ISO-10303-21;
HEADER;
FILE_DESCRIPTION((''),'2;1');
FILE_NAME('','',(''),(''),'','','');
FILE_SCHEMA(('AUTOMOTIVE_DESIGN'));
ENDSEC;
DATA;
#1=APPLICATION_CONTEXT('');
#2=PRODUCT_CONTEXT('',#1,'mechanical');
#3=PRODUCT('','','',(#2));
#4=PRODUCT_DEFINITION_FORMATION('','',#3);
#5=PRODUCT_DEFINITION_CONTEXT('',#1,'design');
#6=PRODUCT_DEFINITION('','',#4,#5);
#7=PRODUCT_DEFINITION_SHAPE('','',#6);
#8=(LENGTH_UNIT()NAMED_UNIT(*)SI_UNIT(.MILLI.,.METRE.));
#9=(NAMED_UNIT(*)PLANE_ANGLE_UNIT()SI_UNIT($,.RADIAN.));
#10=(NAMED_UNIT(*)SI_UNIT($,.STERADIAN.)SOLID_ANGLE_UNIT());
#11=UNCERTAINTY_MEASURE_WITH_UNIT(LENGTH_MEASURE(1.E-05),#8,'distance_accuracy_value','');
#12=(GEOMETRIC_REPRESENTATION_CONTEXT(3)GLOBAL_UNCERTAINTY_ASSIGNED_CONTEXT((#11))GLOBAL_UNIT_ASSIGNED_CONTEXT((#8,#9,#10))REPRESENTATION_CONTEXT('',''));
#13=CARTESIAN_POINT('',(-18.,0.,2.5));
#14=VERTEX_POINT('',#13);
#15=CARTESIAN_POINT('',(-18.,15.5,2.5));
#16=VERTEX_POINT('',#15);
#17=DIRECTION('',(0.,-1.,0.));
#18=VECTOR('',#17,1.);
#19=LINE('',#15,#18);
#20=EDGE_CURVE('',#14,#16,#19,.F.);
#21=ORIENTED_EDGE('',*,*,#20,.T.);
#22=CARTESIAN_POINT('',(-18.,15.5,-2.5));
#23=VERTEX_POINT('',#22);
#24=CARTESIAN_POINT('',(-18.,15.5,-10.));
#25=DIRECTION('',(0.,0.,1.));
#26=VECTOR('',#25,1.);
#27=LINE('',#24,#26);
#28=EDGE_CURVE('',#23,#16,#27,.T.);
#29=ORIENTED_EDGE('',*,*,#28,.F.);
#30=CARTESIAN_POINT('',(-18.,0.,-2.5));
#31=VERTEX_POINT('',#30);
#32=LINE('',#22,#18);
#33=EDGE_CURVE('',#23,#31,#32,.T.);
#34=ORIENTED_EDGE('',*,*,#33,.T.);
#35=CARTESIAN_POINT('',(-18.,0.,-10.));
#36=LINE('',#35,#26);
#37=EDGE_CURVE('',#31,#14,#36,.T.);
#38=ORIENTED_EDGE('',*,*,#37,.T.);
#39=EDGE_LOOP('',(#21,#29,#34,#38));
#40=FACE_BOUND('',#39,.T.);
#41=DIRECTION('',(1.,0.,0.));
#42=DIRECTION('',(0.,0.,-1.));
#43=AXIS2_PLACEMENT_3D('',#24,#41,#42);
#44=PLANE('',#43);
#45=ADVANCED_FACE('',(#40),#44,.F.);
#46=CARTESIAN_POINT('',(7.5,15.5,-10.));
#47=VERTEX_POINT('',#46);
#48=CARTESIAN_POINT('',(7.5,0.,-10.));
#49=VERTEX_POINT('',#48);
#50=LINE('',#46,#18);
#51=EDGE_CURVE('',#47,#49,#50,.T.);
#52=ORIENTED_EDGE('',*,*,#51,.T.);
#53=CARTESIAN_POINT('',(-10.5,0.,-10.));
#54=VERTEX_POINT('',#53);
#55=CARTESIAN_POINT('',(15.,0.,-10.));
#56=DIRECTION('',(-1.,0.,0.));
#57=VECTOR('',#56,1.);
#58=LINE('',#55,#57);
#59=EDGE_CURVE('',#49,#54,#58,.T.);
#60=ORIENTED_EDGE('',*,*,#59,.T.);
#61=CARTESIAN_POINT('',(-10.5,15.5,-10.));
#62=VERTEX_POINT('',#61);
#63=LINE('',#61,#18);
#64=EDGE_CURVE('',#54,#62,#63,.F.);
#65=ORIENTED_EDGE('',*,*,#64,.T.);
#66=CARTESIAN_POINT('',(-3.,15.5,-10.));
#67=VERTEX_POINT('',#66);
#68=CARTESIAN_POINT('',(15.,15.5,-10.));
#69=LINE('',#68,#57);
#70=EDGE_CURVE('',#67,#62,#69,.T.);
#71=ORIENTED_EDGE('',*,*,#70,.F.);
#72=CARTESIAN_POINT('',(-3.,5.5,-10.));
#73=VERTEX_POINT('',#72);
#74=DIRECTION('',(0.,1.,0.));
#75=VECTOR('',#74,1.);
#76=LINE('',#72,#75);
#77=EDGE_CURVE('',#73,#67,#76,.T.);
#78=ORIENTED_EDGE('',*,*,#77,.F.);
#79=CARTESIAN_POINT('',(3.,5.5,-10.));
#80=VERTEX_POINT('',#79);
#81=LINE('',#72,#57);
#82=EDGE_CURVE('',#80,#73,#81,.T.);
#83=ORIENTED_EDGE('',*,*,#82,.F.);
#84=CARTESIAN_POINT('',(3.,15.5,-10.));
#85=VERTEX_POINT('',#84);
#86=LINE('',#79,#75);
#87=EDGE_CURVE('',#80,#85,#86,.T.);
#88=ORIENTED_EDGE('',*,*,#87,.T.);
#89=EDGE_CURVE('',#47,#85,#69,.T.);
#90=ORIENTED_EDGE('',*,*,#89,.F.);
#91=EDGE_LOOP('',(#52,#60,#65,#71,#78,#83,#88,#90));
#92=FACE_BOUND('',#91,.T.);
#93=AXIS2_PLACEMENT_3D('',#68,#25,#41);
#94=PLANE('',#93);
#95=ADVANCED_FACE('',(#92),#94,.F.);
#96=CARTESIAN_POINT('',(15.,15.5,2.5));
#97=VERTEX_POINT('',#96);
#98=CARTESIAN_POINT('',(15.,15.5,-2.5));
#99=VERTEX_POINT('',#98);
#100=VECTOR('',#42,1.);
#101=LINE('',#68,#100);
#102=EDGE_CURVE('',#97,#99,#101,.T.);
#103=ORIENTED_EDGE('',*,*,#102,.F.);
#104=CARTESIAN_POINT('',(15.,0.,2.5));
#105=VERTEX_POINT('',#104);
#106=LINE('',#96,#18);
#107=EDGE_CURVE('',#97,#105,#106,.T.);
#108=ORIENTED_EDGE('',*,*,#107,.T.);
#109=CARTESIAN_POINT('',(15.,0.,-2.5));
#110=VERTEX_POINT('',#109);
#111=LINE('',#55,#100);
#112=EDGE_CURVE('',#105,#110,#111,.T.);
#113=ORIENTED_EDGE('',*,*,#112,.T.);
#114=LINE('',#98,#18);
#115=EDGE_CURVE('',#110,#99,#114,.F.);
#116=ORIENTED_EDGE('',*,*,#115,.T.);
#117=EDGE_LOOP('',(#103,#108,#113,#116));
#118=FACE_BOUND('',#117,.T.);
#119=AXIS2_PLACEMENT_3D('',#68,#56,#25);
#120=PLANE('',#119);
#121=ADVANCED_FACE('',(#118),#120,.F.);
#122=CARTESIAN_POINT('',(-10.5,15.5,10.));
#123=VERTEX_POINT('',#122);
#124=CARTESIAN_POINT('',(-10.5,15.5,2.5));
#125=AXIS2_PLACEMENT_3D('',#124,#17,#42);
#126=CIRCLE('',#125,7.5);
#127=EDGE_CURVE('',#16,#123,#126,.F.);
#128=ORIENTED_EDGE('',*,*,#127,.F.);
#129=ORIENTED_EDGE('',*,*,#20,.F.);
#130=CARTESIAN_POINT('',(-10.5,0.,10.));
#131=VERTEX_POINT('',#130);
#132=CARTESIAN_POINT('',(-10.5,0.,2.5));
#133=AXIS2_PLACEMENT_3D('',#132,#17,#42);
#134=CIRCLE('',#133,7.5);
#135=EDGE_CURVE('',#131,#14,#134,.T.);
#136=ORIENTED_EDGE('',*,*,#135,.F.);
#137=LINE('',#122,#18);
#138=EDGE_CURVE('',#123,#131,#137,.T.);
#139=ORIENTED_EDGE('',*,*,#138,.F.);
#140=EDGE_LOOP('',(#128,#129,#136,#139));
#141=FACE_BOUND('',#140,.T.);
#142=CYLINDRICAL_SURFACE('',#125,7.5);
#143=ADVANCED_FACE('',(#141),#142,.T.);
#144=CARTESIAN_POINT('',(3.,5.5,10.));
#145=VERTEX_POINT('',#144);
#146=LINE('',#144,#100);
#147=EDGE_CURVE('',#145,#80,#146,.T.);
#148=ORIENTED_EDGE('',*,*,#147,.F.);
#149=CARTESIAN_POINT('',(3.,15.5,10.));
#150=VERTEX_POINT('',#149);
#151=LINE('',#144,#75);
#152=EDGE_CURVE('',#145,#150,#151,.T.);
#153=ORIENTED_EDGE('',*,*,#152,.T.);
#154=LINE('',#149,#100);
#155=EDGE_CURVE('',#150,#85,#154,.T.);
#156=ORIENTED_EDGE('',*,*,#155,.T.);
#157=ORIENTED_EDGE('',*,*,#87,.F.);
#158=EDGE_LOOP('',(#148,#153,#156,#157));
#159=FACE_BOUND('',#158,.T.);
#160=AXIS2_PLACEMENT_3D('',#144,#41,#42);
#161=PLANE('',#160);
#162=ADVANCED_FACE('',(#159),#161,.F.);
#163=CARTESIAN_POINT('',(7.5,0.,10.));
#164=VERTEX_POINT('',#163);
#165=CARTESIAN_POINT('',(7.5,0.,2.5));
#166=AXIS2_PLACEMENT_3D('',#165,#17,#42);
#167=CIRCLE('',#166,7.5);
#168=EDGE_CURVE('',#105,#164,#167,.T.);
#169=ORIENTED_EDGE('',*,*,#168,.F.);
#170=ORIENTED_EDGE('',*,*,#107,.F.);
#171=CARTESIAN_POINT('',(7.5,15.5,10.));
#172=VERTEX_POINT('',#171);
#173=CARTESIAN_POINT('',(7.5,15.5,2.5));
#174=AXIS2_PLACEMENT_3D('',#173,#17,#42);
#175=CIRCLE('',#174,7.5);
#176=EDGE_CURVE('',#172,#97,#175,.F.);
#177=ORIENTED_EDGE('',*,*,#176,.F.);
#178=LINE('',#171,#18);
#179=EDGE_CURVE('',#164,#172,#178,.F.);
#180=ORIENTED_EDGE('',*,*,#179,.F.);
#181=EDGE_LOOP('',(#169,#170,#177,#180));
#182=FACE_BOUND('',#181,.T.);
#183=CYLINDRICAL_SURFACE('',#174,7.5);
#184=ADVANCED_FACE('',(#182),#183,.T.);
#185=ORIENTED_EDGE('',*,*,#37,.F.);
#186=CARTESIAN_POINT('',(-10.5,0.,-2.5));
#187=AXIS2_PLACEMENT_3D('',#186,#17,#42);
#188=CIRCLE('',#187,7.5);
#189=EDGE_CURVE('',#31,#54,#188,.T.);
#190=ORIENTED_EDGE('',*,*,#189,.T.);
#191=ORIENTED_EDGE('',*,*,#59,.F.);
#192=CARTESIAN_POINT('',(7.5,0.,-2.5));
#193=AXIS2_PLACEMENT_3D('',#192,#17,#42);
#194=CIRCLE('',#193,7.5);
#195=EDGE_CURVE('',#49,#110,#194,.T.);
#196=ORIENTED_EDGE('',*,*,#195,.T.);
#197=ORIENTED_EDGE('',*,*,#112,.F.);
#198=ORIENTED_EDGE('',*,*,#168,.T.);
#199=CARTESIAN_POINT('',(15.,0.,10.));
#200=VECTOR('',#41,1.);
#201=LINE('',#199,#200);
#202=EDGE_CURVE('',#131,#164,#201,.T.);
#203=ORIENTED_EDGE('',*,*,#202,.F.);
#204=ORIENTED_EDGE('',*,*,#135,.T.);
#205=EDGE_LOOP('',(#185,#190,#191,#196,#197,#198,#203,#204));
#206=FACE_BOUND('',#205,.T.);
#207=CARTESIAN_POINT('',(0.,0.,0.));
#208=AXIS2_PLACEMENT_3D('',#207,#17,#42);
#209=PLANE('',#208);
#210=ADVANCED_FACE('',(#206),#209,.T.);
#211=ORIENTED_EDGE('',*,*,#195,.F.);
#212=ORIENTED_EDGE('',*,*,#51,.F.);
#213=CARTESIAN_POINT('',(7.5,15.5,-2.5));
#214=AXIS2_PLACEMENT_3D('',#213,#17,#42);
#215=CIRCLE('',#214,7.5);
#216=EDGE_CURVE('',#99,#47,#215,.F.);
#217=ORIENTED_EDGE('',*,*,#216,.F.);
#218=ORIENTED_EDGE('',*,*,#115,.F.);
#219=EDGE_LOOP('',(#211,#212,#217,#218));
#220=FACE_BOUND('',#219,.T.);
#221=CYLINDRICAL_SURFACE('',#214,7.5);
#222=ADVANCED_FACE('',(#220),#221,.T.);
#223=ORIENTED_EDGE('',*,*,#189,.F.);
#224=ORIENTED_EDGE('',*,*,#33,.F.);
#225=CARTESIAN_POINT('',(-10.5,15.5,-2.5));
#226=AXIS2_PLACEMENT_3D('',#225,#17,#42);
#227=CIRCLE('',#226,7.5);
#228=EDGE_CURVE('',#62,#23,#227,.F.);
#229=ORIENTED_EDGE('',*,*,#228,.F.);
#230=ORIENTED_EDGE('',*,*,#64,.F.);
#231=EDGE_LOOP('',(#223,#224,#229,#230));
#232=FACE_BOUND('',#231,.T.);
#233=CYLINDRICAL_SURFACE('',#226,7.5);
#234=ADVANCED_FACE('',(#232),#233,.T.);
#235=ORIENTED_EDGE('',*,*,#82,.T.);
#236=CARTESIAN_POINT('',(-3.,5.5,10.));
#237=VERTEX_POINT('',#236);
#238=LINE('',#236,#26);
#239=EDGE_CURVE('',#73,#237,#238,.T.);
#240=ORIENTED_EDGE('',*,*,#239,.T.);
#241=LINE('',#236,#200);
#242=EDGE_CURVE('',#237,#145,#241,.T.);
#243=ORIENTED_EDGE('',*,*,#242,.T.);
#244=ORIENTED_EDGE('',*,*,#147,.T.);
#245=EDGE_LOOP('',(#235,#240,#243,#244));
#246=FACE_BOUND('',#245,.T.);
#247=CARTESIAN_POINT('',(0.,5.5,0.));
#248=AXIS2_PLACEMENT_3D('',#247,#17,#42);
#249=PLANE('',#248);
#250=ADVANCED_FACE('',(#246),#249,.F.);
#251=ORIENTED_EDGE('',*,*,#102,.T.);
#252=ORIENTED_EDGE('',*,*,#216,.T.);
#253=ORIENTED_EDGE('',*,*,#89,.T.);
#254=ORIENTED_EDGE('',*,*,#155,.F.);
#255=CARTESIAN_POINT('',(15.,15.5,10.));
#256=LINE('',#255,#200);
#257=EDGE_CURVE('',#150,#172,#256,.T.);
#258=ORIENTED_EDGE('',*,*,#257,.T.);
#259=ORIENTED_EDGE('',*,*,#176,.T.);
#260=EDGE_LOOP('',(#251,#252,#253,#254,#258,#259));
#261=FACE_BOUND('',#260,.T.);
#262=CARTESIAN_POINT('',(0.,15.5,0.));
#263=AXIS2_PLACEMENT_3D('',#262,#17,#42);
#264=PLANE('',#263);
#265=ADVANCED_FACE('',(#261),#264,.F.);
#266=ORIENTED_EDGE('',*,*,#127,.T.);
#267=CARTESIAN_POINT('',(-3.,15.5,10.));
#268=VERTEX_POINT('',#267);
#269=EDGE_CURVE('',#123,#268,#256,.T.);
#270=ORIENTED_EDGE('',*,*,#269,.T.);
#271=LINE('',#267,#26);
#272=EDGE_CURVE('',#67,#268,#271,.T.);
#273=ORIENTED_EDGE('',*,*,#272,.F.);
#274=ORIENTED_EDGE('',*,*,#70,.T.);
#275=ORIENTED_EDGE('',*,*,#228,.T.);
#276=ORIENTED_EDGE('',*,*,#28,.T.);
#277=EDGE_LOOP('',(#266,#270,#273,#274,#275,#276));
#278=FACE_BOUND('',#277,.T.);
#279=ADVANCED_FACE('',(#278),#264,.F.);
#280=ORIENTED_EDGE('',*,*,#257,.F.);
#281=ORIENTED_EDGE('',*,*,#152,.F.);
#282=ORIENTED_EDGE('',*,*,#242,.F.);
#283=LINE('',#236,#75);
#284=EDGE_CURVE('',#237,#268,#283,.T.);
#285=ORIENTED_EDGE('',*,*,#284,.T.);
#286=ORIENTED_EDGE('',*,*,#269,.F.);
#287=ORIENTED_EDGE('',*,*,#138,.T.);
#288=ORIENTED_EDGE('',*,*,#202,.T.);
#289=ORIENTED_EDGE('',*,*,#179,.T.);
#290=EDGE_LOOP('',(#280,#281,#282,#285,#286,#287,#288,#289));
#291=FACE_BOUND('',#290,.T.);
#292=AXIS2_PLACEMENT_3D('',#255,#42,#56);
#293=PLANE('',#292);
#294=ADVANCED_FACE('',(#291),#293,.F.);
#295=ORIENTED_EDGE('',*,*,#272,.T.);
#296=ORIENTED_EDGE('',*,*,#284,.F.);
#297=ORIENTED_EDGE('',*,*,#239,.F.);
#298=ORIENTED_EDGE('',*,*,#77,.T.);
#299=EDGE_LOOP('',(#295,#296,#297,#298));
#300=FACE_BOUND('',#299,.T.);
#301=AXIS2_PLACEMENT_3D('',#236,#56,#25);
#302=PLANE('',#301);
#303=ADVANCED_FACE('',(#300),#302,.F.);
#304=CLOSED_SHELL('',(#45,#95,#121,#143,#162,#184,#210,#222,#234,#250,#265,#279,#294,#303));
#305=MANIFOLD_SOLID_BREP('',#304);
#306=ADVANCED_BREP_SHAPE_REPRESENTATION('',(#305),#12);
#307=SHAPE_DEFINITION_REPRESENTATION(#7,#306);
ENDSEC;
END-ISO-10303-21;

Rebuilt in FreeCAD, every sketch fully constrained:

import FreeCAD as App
import Part
import Sketcher
Q = App.Units.Quantity


def edges_at(feature, points):
    """Names of the edges that pass closest to the given points."""
    edges = feature.Shape.Edges
    near = lambda p: min(range(len(edges)), key=lambda i: edges[i].distToShape(Part.Vertex(*p))[0])
    return sorted({f"Edge{near(p) + 1}" for p in points})

doc = App.newDocument("Part")
params = doc.addObject("Spreadsheet::Sheet", "Params")
for row, (alias, value) in enumerate([
    ("sketch1_width", "33 mm"),
    ("sketch1_height", "20 mm"),
    ("pad1_length", "15.5 mm"),
    ("sketch2_width", "6 mm"),
    ("sketch2_height", "20 mm"),
    ("pocket1_length", "10 mm"),
    ("fillet_radius", "7.5 mm"),
], start=1):
    params.set(f"A{row}", alias)
    params.set(f"B{row}", "=" + value)
    params.setAlias(f"B{row}", alias)

body = doc.addObject("PartDesign::Body", "Body")

# Sketch on XZ plane
sketch1 = body.newObject("Sketcher::SketchObject", "Sketch")
sketch1.AttachmentSupport = (doc.getObject("XZ_Plane"), [""])
sketch1.MapMode = "FlatFace"
sketch1.addGeometry([
    Part.LineSegment(App.Vector(-18, -10, 0), App.Vector(-18, 10, 0)),
    Part.LineSegment(App.Vector(-18, 10, 0), App.Vector(15, 10, 0)),
    Part.LineSegment(App.Vector(15, 10, 0), App.Vector(15, -10, 0)),
    Part.LineSegment(App.Vector(15, -10, 0), App.Vector(-18, -10, 0)),
], False)
sketch1.addConstraint([
    Sketcher.Constraint("Coincident", 0, 2, 1, 1),
    Sketcher.Constraint("Coincident", 1, 2, 2, 1),
    Sketcher.Constraint("Coincident", 2, 2, 3, 1),
    Sketcher.Constraint("Coincident", 3, 2, 0, 1),
    Sketcher.Constraint("Vertical", 0),
    Sketcher.Constraint("Horizontal", 1),
    Sketcher.Constraint("Vertical", 2),
    Sketcher.Constraint("Horizontal", 3),
    Sketcher.Constraint("DistanceX", 1, 1, 1, 2, Q("33 mm")),
    Sketcher.Constraint("DistanceY", 0, 1, 0, 2, Q("20 mm")),
    Sketcher.Constraint("DistanceX", 0, 2, -1, 1, Q("18 mm")),
    Sketcher.Constraint("DistanceY", -1, 1, 0, 2, Q("10 mm")),
])
sketch1.setExpression("Constraints[8]", "Params.sketch1_width")
sketch1.setExpression("Constraints[9]", "Params.sketch1_height")
pad1 = body.newObject("PartDesign::Pad", "Pad")
pad1.Profile = sketch1
pad1.setExpression("Length", "Params.pad1_length")
pad1.Reversed = True

# Sketch on XZ plane
sketch2 = body.newObject("Sketcher::SketchObject", "Sketch001")
sketch2.AttachmentSupport = (doc.getObject("XZ_Plane"), [""])
sketch2.MapMode = "FlatFace"
sketch2.AttachmentOffset = App.Placement(App.Vector(0, 0, -15.5), App.Rotation())
sketch2.addGeometry([
    Part.LineSegment(App.Vector(-3, -10, 0), App.Vector(-3, 10, 0)),
    Part.LineSegment(App.Vector(-3, 10, 0), App.Vector(3, 10, 0)),
    Part.LineSegment(App.Vector(3, 10, 0), App.Vector(3, -10, 0)),
    Part.LineSegment(App.Vector(3, -10, 0), App.Vector(-3, -10, 0)),
], False)
sketch2.addConstraint([
    Sketcher.Constraint("Coincident", 0, 2, 1, 1),
    Sketcher.Constraint("Coincident", 1, 2, 2, 1),
    Sketcher.Constraint("Coincident", 2, 2, 3, 1),
    Sketcher.Constraint("Coincident", 3, 2, 0, 1),
    Sketcher.Constraint("Vertical", 0),
    Sketcher.Constraint("Horizontal", 1),
    Sketcher.Constraint("Vertical", 2),
    Sketcher.Constraint("Horizontal", 3),
    Sketcher.Constraint("Symmetric", 0, 2, 2, 2, -1, 1),
    Sketcher.Constraint("DistanceX", 1, 1, 1, 2, Q("6 mm")),
    Sketcher.Constraint("DistanceY", 0, 1, 0, 2, Q("20 mm")),
])
sketch2.setExpression("Constraints[9]", "Params.sketch2_width")
sketch2.setExpression("Constraints[10]", "Params.sketch2_height")
pocket1 = body.newObject("PartDesign::Pocket", "Pocket")
pocket1.Profile = sketch2
pocket1.setExpression("Length", "Params.pocket1_length")
pocket1.Reversed = True
doc.recompute()

fillet = body.newObject("PartDesign::Fillet", "Fillet")
fillet.Base = (pocket1, edges_at(pocket1, [
    (15, 7.75, 10),
    (-18, 7.75, 10),
    (-18, 7.75, -10),
    (15, 7.75, -10),
]))
fillet.setExpression("Radius", "Params.fillet_radius")

doc.recompute()
